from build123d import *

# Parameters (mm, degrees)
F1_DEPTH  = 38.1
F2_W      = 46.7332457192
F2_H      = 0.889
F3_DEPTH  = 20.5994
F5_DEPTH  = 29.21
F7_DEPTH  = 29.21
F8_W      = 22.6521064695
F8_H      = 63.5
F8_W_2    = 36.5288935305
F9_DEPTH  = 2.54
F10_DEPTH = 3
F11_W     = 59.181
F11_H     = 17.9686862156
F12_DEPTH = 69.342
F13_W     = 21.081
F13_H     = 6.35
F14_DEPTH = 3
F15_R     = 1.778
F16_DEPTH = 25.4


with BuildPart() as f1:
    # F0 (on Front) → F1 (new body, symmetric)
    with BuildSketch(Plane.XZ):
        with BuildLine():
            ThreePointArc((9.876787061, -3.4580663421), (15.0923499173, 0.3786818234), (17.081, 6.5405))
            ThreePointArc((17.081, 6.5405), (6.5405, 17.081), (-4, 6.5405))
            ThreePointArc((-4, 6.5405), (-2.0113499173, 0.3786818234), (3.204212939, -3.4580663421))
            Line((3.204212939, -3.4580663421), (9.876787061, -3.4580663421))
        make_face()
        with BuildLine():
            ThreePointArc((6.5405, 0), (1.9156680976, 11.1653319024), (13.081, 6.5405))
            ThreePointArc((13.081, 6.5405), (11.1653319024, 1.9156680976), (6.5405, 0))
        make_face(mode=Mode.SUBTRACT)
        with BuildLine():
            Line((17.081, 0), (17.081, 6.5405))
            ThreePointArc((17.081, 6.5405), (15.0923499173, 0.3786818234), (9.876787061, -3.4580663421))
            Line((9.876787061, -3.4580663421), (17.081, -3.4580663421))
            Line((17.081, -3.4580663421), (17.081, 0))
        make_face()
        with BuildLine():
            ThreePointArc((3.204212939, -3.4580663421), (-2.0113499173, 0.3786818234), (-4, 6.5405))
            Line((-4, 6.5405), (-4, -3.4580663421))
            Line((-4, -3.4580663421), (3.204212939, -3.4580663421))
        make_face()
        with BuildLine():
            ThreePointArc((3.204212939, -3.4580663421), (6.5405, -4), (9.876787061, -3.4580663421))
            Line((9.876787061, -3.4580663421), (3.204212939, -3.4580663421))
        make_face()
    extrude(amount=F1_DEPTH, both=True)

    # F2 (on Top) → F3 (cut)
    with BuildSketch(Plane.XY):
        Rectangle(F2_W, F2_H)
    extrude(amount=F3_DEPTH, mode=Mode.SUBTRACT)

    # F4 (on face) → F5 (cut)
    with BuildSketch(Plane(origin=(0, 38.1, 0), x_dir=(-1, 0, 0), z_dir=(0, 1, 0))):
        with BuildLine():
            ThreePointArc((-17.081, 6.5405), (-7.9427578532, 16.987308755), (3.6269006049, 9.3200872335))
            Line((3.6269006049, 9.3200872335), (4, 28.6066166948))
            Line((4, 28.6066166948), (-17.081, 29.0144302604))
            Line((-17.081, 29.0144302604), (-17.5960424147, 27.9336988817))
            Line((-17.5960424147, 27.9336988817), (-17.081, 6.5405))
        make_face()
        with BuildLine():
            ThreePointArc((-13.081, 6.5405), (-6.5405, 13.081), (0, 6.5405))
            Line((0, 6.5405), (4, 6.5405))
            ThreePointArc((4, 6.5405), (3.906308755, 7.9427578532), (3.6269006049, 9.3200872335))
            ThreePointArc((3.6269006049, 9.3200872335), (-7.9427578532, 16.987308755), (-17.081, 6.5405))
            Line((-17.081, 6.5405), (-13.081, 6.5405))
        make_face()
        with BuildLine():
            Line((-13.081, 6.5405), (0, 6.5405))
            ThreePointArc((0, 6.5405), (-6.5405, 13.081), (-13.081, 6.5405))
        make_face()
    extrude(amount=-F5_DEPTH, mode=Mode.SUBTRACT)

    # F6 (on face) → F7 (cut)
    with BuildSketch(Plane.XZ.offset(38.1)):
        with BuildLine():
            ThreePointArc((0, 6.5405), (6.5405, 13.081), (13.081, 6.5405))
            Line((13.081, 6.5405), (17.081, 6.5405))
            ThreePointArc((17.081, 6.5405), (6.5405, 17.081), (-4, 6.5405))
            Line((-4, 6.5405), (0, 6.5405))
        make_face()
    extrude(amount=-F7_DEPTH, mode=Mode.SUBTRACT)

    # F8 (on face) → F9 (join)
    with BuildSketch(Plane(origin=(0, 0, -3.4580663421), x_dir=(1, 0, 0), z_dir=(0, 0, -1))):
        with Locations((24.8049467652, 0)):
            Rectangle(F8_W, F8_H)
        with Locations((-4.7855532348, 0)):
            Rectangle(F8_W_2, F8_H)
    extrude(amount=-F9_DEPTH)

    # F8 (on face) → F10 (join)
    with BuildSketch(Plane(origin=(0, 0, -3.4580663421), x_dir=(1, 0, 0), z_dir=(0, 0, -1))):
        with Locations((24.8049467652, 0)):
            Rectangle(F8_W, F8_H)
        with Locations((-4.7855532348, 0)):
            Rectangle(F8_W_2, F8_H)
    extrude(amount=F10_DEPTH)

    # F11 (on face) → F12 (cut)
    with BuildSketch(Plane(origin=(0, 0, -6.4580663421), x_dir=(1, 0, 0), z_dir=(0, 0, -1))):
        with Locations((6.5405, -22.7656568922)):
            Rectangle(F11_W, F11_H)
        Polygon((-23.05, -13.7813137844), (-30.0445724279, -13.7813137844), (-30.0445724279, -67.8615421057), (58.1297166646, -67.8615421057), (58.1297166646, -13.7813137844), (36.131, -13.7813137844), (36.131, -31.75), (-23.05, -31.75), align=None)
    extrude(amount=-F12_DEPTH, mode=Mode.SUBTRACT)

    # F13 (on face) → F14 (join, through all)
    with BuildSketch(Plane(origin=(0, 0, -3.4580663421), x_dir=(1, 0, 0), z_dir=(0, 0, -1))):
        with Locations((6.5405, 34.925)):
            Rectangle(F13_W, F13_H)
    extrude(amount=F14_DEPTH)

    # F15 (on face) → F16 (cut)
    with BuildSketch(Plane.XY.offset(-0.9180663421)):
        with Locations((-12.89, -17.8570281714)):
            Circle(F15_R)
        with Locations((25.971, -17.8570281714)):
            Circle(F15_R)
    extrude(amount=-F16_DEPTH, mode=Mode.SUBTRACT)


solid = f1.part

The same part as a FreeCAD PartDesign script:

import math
import FreeCAD as App
import Part
import Sketcher
from FreeCAD import Vector
Q = App.Units.Quantity


def add_polygon(sketch, points):
    """Adds a closed chain of lines whose ends are joined by coincident constraints."""
    first, n = sketch.GeometryCount, len(points)
    for a, b in zip(points, points[1:] + points[:1]):
        sketch.addGeometry(Part.LineSegment(App.Vector(*a, 0), App.Vector(*b, 0)), False)
    for i in range(n):
        sketch.addConstraint(Sketcher.Constraint("Coincident", first + i, 2, first + (i + 1) % n, 1))

doc = App.newDocument("Part")
body = doc.addObject("PartDesign::Body", "Body")

sketch1 = body.newObject("Sketcher::SketchObject", "Sketch")
sketch1.AttachmentSupport = (doc.getObject("XZ_Plane"), [""])
sketch1.MapMode = "FlatFace"
sketch1.addGeometry([
    Part.LineSegment(Vector(10, -3, 0), Vector(17, -3, 0)),
    Part.LineSegment(Vector(17, -3, 0), Vector(17, 7, 0)),
    Part.ArcOfCircle(Part.Circle(Vector(7, 7, 0), Vector(0, 0, 1), 11), math.radians(0), math.radians(180)),
    Part.LineSegment(Vector(-4, 7, 0), Vector(-4, -3, 0)),
    Part.LineSegment(Vector(-4, -3, 0), Vector(3, -3, 0)),
    Part.ArcOfCircle(Part.Circle(Vector(7, 7, 0), Vector(0, 0, 1), 11), math.radians(-108), math.radians(-72)),
    Part.ArcOfCircle(Part.Circle(Vector(7, 7, 0), Vector(0, 0, 1), 7), math.radians(-90), math.radians(0)),
    Part.ArcOfCircle(Part.Circle(Vector(7, 7, 0), Vector(0, 0, 1), 7), math.radians(0), math.radians(270)),
], False)
sketch1.addConstraint([
    Sketcher.Constraint("Coincident", 0, 2, 1, 1),
    Sketcher.Constraint("Tangent", 1, 2, 2, 1),
    Sketcher.Constraint("Tangent", 2, 2, 3, 1),
    Sketcher.Constraint("Coincident", 3, 2, 4, 1),
    Sketcher.Constraint("Coincident", 4, 2, 5, 1),
    Sketcher.Constraint("Coincident", 5, 2, 0, 1),
    Sketcher.Constraint("Tangent", 6, 1, 7, 2),
    Sketcher.Constraint("Coincident", 7, 1, 6, 2),
    Sketcher.Constraint("Horizontal", 0),
    Sketcher.Constraint("Vertical", 1),
    Sketcher.Constraint("Vertical", 3),
    Sketcher.Constraint("Horizontal", 4),
    Sketcher.Constraint("Coincident", 5, 3, 2, 3),
    Sketcher.Constraint("Coincident", 6, 3, 2, 3),
    Sketcher.Constraint("Equal", 2, 5),
    Sketcher.Constraint("PointOnObject", 6, 1, -1),
    Sketcher.Constraint("Horizontal", 0, 2, 3, 2),
    Sketcher.Constraint("Horizontal", 2, 2, 7, 1),
    Sketcher.Constraint("Vertical", 7, 3, 6, 1),
    Sketcher.Constraint("Radius", 6, Q("0.2575 in")),
    Sketcher.Constraint("Radius", 2, Q("10.5405 mm")),
    Sketcher.Constraint("DistanceX", -1, 1, 7, 1, Q("0.515 in")),
    Sketcher.Constraint("DistanceX", 0, 1, 0, 2, Q("7.204213 mm")),
])
pad1 = body.newObject("PartDesign::Pad", "Pad")
pad1.Profile = sketch1
pad1.Length = Q("3 in")
pad1.Midplane = True

sketch2 = body.newObject("Sketcher::SketchObject", "Sketch001")
sketch2.AttachmentSupport = (doc.getObject("XY_Plane"), [""])
sketch2.MapMode = "FlatFace"
add_polygon(sketch2, [(-23.4, 0.4), (-23.4, -0.4), (23.4, -0.4), (23.4, 0.4)])
sketch2.addConstraint([
    Sketcher.Constraint("Vertical", 0),
    Sketcher.Constraint("Horizontal", 1),
    Sketcher.Constraint("Vertical", 2),
    Sketcher.Constraint("Horizontal", 3),
    Sketcher.Constraint("Symmetric", 0, 2, 2, 2, -1, 1),
    Sketcher.Constraint("DistanceY", 0, 2, 0, 1, Q("0.035 in")),
    Sketcher.Constraint("DistanceX", 1, 1, 1, 2, Q("46.733246 mm")),
])
pocket1 = body.newObject("PartDesign::Pocket", "Pocket")
pocket1.Profile = sketch2
pocket1.Length = Q("0.811 in")
pocket1.Reversed = True

sketch3 = body.newObject("Sketcher::SketchObject", "Sketch002")
sketch3.AttachmentSupport = (doc.getObject("XZ_Plane"), [""])
sketch3.MapMode = "FlatFace"
sketch3.AttachmentOffset = App.Placement(Vector(0, 0, -1.5 * 25.4), App.Rotation())
sketch3.addGeometry([
    Part.LineSegment(Vector(-3.6, 9.3, 0), Vector(-4, 28.6, 0)),
    Part.LineSegment(Vector(-4, 28.6, 0), Vector(17.1, 29, 0)),
    Part.LineSegment(Vector(17.1, 29, 0), Vector(17.6, 27.9, 0)),
    Part.LineSegment(Vector(17.6, 27.9, 0), Vector(17.1, 6.5, 0)),
    Part.LineSegment(Vector(17.1, 6.5, 0), Vector(-4, 6.5, 0)),
    Part.ArcOfCircle(Part.Circle(Vector(6.5, 6.5, 0), Vector(0, 0, 1), 10.5), math.radians(164.71), math.radians(180)),
], False)
sketch3.addConstraint([
    Sketcher.Constraint("Coincident", 0, 2, 1, 1),
    Sketcher.Constraint("Coincident", 1, 2, 2, 1),
    Sketcher.Constraint("Coincident", 2, 2, 3, 1),
    Sketcher.Constraint("Coincident", 3, 2, 4, 1),
    Sketcher.Constraint("Coincident", 4, 2, 5, 2),
    Sketcher.Constraint("Coincident", 5, 1, 0, 1),
    Sketcher.Constraint("Horizontal", 4),
    Sketcher.Constraint("Perpendicular", 0, 1),
    Sketcher.Constraint("Horizontal", 5, 3, 3, 2),
    Sketcher.Constraint("Vertical", 1, 2, 3, 2),
    Sketcher.Constraint("Vertical", 0, 2, 4, 2),
    Sketcher.Constraint("Radius", 5, Q("10.5405 mm")),
    Sketcher.Constraint("DistanceX", 4, 2, 4, 1, Q("21.081 mm")),
    Sketcher.Constraint("DistanceX", -1, 1, 5, 3, Q("0.2575 in")),
    Sketcher.Constraint("DistanceY", -1, 1, 5, 3, Q("0.2575 in")),
    Sketcher.Constraint("DistanceY", -1, 1, 2, 2, Q("27.933699 mm")),
    Sketcher.Constraint("DistanceX", 5, 1, -1, 1, Q("3.626901 mm")),
    Sketcher.Constraint("DistanceY", -1, 1, 1, 2, Q("29.01443 mm")),
    Sketcher.Constraint("Distance", 2, Q("1.197184 mm")),
])
pocket2 = body.newObject("PartDesign::Pocket", "Pocket001")
pocket2.Profile = sketch3
pocket2.Length = Q("1.15 in")
pocket2.Reversed = True

sketch4 = body.newObject("Sketcher::SketchObject", "Sketch003")
sketch4.AttachmentSupport = (doc.getObject("XZ_Plane"), [""])
sketch4.MapMode = "FlatFace"
sketch4.AttachmentOffset = App.Placement(Vector(0, 0, 1.5 * 25.4), App.Rotation())
sketch4.addGeometry([
    Part.ArcOfCircle(Part.Circle(Vector(6.5, 6.5, 0), Vector(0, 0, 1), 6.5), math.radians(0), math.radians(180)),
    Part.LineSegment(Vector(13.1, 6.5, 0), Vector(17.1, 6.5, 0)),
    Part.ArcOfCircle(Part.Circle(Vector(6.5, 6.5, 0), Vector(0, 0, 1), 10.5), math.radians(0), math.radians(180)),
    Part.LineSegment(Vector(-4, 6.5, 0), Vector(0, 6.5, 0)),
], False)
sketch4.addConstraint([
    Sketcher.Constraint("Coincident", 0, 1, 1, 1),
    Sketcher.Constraint("Coincident", 1, 2, 2, 1),
    Sketcher.Constraint("Coincident", 2, 2, 3, 1),
    Sketcher.Constraint("Coincident", 3, 2, 0, 2),
    Sketcher.Constraint("Horizontal", 1),
    Sketcher.Constraint("Horizontal", 3),
    Sketcher.Constraint("Coincident", 2, 3, 0, 3),
    Sketcher.Constraint("PointOnObject", 3, 2, -2),
    Sketcher.Constraint("Horizontal", 2, 3, 0, 1),
    Sketcher.Constraint("Horizontal", 1, 2, 2, 2),
    Sketcher.Constraint("Radius", 0, Q("0.2575 in")),
    Sketcher.Constraint("Radius", 2, Q("10.5405 mm")),
    Sketcher.Constraint("DistanceY", -1, 1, 0, 3, Q("0.2575 in")),
])
pocket3 = body.newObject("PartDesign::Pocket", "Pocket002")
pocket3.Profile = sketch4
pocket3.Length = Q("1.15 in")

sketch5 = body.newObject("Sketcher::SketchObject", "Sketch004")
sketch5.AttachmentSupport = (doc.getObject("XY_Plane"), [""])
sketch5.MapMode = "FlatFace"
sketch5.AttachmentOffset = App.Placement(Vector(0, 0, -3.458066), App.Rotation())
add_polygon(sketch5, [(36, 32), (36, -32), (-23, -32), (-23, 32)])
sketch5.addConstraint([
    Sketcher.Constraint("Vertical", 0),
    Sketcher.Constraint("Horizontal", 1),
    Sketcher.Constraint("Vertical", 2),
    Sketcher.Constraint("Horizontal", 3),
    Sketcher.Constraint("DistanceY", 0, 2, 0, 1, Q("2.5 in")),
    Sketcher.Constraint("DistanceY", 0, 2, -1, 1, Q("1.25 in")),
    Sketcher.Constraint("DistanceX", 1, 2, 1, 1, Q("59.181 mm")),
    Sketcher.Constraint("DistanceX", -1, 1, 0, 2, Q("36.131 mm")),
])
pad2 = body.newObject("PartDesign::Pad", "Pad001")
pad2.Profile = sketch5
pad2.Length = Q("0.1 in")

sketch6 = body.newObject("Sketcher::SketchObject", "Sketch005")
sketch6.AttachmentSupport = (doc.getObject("XY_Plane"), [""])
sketch6.MapMode = "FlatFace"
sketch6.AttachmentOffset = App.Placement(Vector(0, 0, -3.458066), App.Rotation())
add_polygon(sketch6, [(36, 32), (36, -32), (-23, -32), (-23, 32)])
sketch6.addConstraint([
    Sketcher.Constraint("Vertical", 0),
    Sketcher.Constraint("Horizontal", 1),
    Sketcher.Constraint("Vertical", 2),
    Sketcher.Constraint("Horizontal", 3),
    Sketcher.Constraint("DistanceY", 0, 2, 0, 1, Q("2.5 in")),
    Sketcher.Constraint("DistanceY", 0, 2, -1, 1, Q("1.25 in")),
    Sketcher.Constraint("DistanceX", 1, 2, 1, 1, Q("59.181 mm")),
    Sketcher.Constraint("DistanceX", -1, 1, 0, 2, Q("36.131 mm")),
])
pad3 = body.newObject("PartDesign::Pad", "Pad002")
pad3.Profile = sketch6
pad3.Length = 3
pad3.Reversed = True

sketch7 = body.newObject("Sketcher::SketchObject", "Sketch006")
sketch7.AttachmentSupport = (doc.getObject("XY_Plane"), [""])
sketch7.MapMode = "FlatFace"
sketch7.AttachmentOffset = App.Placement(Vector(0, 0, -6.458066), App.Rotation())
add_polygon(sketch7, [(-30, 14), (-30, 68), (58, 68), (58, 14)])
sketch7.addConstraint([
    Sketcher.Constraint("Vertical", 0),
    Sketcher.Constraint("Horizontal", 1),
    Sketcher.Constraint("Vertical", 2),
    Sketcher.Constraint("Horizontal", 3),
    Sketcher.Constraint("DistanceX", 1, 1, 1, 2, Q("88.174289 mm")),
    Sketcher.Constraint("DistanceY", 0, 1, 0, 2, Q("54.080228 mm")),
    Sketcher.Constraint("DistanceX", 0, 2, -1, 1, Q("30.044572 mm")),
    Sketcher.Constraint("DistanceY", -1, 1, 0, 2, Q("67.861542 mm")),
])
pocket4 = body.newObject("PartDesign::Pocket", "Pocket003")
pocket4.Profile = sketch7
pocket4.Length = Q("2.73 in")
pocket4.Reversed = True

sketch8 = body.newObject("Sketcher::SketchObject", "Sketch007")
sketch8.AttachmentSupport = (doc.getObject("XY_Plane"), [""])
sketch8.MapMode = "FlatFace"
sketch8.AttachmentOffset = App.Placement(Vector(0, 0, -3.458066), App.Rotation())
add_polygon(sketch8, [(-4, -38), (-4, -32), (17, -32), (17, -38)])
sketch8.addConstraint([
    Sketcher.Constraint("Vertical", 0),
    Sketcher.Constraint("Horizontal", 1),
    Sketcher.Constraint("Vertical", 2),
    Sketcher.Constraint("Horizontal", 3),
    Sketcher.Constraint("DistanceY", 0, 1, 0, 2, Q("0.25 in")),
    Sketcher.Constraint("DistanceY", 2, 2, -1, 1, Q("1.5 in")),
    Sketcher.Constraint("DistanceX", 1, 1, 1, 2, Q("21.081 mm")),
    Sketcher.Constraint("DistanceX", 0, 2, -1, 1, Q("4 mm")),
])
pad4 = body.newObject("PartDesign::Pad", "Pad003")
pad4.Profile = sketch8
pad4.Length = 3
pad4.Reversed = True

sketch9 = body.newObject("Sketcher::SketchObject", "Sketch008")
sketch9.AttachmentSupport = (doc.getObject("XY_Plane"), [""])
sketch9.MapMode = "FlatFace"
sketch9.AttachmentOffset = App.Placement(Vector(0, 0, -0.918066), App.Rotation())
sketch9.addGeometry([
    Part.Circle(Vector(-12.9, -17.9, 0), Vector(0, 0, 1), 1.8),
    Part.Circle(Vector(26, -17.9, 0), Vector(0, 0, 1), 1.8),
], False)
sketch9.addConstraint([
    Sketcher.Constraint("Equal", 0, 1),
    Sketcher.Constraint("Horizontal", 0, 3, 1, 3),
    Sketcher.Constraint("Diameter", 0, Q("0.14 in")),
    Sketcher.Constraint("DistanceX", 0, 3, -1, 1, Q("12.89 mm")),
    Sketcher.Constraint("DistanceX", -1, 1, 1, 3, Q("25.971 mm")),
    Sketcher.Constraint("DistanceY", 0, 3, -1, 1, Q("17.857028 mm")),
])
pocket5 = body.newObject("PartDesign::Pocket", "Pocket004")
pocket5.Profile = sketch9
pocket5.Length = Q("1 in")

doc.recompute()
